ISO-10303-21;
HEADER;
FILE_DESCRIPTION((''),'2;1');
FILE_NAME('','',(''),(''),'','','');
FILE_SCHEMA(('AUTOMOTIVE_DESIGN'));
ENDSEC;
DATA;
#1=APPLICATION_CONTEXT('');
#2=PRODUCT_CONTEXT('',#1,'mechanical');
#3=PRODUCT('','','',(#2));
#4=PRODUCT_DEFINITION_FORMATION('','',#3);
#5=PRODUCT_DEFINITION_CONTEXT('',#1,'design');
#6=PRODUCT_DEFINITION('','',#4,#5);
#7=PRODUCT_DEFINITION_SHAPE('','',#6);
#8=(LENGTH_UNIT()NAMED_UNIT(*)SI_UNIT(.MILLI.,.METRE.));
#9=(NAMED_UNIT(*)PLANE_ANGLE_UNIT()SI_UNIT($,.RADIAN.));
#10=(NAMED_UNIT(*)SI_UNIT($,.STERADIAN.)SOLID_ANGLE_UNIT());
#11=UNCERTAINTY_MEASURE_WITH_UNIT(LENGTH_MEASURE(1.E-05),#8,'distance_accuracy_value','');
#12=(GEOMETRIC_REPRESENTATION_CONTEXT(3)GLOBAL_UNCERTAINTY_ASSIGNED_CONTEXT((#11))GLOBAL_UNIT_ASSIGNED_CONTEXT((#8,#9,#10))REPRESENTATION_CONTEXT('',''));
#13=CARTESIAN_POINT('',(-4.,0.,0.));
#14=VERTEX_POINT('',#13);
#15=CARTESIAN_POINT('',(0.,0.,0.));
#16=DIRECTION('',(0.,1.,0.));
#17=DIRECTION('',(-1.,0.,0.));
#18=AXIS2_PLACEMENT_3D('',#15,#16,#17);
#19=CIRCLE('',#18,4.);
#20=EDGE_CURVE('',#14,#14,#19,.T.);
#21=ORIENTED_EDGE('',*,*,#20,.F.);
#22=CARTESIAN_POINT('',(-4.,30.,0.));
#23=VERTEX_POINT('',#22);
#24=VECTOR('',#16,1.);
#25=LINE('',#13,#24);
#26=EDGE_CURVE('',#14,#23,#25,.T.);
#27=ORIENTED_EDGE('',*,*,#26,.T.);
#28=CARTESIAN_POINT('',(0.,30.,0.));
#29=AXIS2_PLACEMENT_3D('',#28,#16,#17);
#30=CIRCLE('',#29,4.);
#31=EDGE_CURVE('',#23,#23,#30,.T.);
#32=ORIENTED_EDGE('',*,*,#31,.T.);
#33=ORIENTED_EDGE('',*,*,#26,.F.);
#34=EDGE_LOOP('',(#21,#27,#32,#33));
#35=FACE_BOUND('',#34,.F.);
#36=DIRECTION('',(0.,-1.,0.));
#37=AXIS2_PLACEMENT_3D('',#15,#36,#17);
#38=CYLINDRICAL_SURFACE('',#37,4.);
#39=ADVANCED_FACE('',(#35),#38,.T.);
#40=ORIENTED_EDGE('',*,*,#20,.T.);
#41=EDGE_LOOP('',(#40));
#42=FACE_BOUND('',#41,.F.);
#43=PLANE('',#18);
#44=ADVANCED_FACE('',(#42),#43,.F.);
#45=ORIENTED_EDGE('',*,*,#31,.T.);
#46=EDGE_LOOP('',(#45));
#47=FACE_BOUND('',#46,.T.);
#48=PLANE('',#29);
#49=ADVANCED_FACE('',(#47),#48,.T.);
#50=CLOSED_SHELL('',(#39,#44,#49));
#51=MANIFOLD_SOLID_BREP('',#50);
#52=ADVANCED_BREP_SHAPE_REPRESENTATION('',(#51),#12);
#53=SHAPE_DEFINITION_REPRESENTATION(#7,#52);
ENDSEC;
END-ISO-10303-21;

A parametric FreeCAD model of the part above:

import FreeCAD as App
import Part
import Sketcher
from FreeCAD import Vector

doc = App.newDocument("Part")
body = doc.addObject("PartDesign::Body", "Body")

# Sketch on XZ plane
sketch1 = body.newObject("Sketcher::SketchObject", "Sketch")
sketch1.AttachmentSupport = (doc.getObject("XZ_Plane"), [""])
sketch1.MapMode = "FlatFace"
sketch1.addGeometry(Part.Circle(Vector(0, 0, 0), Vector(0, 0, 1), 4), False)
sketch1.addConstraint([
    Sketcher.Constraint("Coincident", 0, 3, -1, 1),
    Sketcher.Constraint("Diameter", 0, 8.0),
])
pad1 = body.newObject("PartDesign::Pad", "Pad")
pad1.Profile = sketch1
pad1.Length = 30
pad1.Reversed = True

doc.recompute()
